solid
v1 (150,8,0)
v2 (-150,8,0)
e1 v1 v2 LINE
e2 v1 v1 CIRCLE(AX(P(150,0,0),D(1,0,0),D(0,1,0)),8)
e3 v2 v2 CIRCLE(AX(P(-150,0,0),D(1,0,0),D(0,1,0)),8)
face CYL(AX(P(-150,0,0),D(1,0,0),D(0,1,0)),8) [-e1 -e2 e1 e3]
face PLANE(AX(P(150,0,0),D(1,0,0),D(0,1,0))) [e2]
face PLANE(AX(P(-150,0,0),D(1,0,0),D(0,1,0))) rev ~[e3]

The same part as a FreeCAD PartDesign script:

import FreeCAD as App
import Part
import Sketcher
Q = App.Units.Quantity

doc = App.newDocument("Part")
body = doc.addObject("PartDesign::Body", "Body")

sketch1 = body.newObject("Sketcher::SketchObject", "Sketch")
sketch1.AttachmentSupport = (doc.getObject("XY_Plane"), [""])
sketch1.MapMode = "FlatFace"
sketch1.addGeometry([
    Part.LineSegment(App.Vector(150, 0, 0), App.Vector(150, 8, 0)),
    Part.LineSegment(App.Vector(150, 8, 0), App.Vector(-150, 8, 0)),
    Part.LineSegment(App.Vector(-150, 8, 0), App.Vector(-150, 0, 0)),
    Part.LineSegment(App.Vector(-150, 0, 0), App.Vector(150, 0, 0)),
], False)
sketch1.addConstraint([
    Sketcher.Constraint("Coincident", 0, 2, 1, 1),
    Sketcher.Constraint("Coincident", 1, 2, 2, 1),
    Sketcher.Constraint("Coincident", 2, 2, 3, 1),
    Sketcher.Constraint("Coincident", 3, 2, 0, 1),
    Sketcher.Constraint("Vertical", 0),
    Sketcher.Constraint("Horizontal", 1),
    Sketcher.Constraint("Vertical", 2),
    Sketcher.Constraint("Horizontal", 3),
    Sketcher.Constraint("Symmetric", 2, 2, 3, 2, -1, 1),
    Sketcher.Constraint("DistanceX", 1, 2, 1, 1, Q("300 mm")),
    Sketcher.Constraint("DistanceY", 0, 1, 0, 2, Q("8 mm")),
])
revolution = body.newObject("PartDesign::Revolution", "Revolution")
revolution.Profile = sketch1
revolution.ReferenceAxis = (sketch1, ["H_Axis"])
revolution.Angle = 360

doc.recompute()
